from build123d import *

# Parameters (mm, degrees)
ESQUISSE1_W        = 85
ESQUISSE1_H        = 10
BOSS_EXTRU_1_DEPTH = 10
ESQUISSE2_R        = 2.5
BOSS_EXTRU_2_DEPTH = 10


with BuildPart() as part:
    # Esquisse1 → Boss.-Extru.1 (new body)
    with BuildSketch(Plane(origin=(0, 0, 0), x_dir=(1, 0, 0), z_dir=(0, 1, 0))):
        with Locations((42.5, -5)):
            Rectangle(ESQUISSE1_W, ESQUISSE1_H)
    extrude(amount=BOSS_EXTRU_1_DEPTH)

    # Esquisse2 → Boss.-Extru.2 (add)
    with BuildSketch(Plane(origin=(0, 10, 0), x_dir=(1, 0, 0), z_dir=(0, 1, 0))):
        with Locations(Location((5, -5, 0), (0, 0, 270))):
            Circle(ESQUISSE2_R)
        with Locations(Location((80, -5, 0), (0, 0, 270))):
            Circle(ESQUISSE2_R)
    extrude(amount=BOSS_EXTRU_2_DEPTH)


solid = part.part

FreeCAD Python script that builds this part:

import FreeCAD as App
import Part
import Sketcher
Q = App.Units.Quantity


def add_polygon(sketch, points):
    """Adds a closed chain of lines whose ends are joined by coincident constraints."""
    first, n = sketch.GeometryCount, len(points)
    for a, b in zip(points, points[1:] + points[:1]):
        sketch.addGeometry(Part.LineSegment(App.Vector(*a, 0), App.Vector(*b, 0)), False)
    for i in range(n):
        sketch.addConstraint(Sketcher.Constraint("Coincident", first + i, 2, first + (i + 1) % n, 1))

doc = App.newDocument("Part")
body = doc.addObject("PartDesign::Body", "Body")

sketch1 = body.newObject("Sketcher::SketchObject", "Sketch")
sketch1.AttachmentSupport = (doc.getObject("XZ_Plane"), [""])
sketch1.MapMode = "FlatFace"
add_polygon(sketch1, [(0, 0), (0, 10), (85, 10), (85, 0)])
sketch1.addConstraint(Sketcher.Constraint("Vertical", 0))
sketch1.addConstraint(Sketcher.Constraint("Horizontal", 1))
sketch1.addConstraint(Sketcher.Constraint("Vertical", 2))
sketch1.addConstraint(Sketcher.Constraint("Horizontal", 3))
sketch1.addConstraint(Sketcher.Constraint("Coincident", 3, 2, -1, 1))
sketch1.addConstraint(Sketcher.Constraint("DistanceX", 1, 1, 1, 2, Q("85 mm")))
sketch1.addConstraint(Sketcher.Constraint("DistanceY", 0, 1, 0, 2, Q("10 mm")))
pad1 = body.newObject("PartDesign::Pad", "Pad")
pad1.Profile = sketch1
pad1.Length = 10
pad1.Reversed = True

sketch2 = body.newObject("Sketcher::SketchObject", "Sketch001")
sketch2.AttachmentSupport = (doc.getObject("XZ_Plane"), [""])
sketch2.MapMode = "FlatFace"
sketch2.AttachmentOffset = App.Placement(App.Vector(0, 0, -10), App.Rotation())
sketch2.addGeometry(Part.Circle(App.Vector(5, 5, 0), App.Vector(0, 0, 1), 2.5), False)
sketch2.addGeometry(Part.Circle(App.Vector(80, 5, 0), App.Vector(0, 0, 1), 2.5), False)
sketch2.addConstraint(Sketcher.Constraint("Equal", 0, 1))
sketch2.addConstraint(Sketcher.Constraint("Horizontal", 0, 3, 1, 3))
sketch2.addConstraint(Sketcher.Constraint("Diameter", 0, Q("5 mm")))
sketch2.addConstraint(Sketcher.Constraint("DistanceX", -1, 1, 0, 3, Q("5 mm")))
sketch2.addConstraint(Sketcher.Constraint("DistanceY", -1, 1, 0, 3, Q("5 mm")))
sketch2.addConstraint(Sketcher.Constraint("DistanceX", -1, 1, 1, 3, Q("80 mm")))
pad2 = body.newObject("PartDesign::Pad", "Pad001")
pad2.Profile = sketch2
pad2.Length = 10
pad2.Reversed = True

doc.recompute()
